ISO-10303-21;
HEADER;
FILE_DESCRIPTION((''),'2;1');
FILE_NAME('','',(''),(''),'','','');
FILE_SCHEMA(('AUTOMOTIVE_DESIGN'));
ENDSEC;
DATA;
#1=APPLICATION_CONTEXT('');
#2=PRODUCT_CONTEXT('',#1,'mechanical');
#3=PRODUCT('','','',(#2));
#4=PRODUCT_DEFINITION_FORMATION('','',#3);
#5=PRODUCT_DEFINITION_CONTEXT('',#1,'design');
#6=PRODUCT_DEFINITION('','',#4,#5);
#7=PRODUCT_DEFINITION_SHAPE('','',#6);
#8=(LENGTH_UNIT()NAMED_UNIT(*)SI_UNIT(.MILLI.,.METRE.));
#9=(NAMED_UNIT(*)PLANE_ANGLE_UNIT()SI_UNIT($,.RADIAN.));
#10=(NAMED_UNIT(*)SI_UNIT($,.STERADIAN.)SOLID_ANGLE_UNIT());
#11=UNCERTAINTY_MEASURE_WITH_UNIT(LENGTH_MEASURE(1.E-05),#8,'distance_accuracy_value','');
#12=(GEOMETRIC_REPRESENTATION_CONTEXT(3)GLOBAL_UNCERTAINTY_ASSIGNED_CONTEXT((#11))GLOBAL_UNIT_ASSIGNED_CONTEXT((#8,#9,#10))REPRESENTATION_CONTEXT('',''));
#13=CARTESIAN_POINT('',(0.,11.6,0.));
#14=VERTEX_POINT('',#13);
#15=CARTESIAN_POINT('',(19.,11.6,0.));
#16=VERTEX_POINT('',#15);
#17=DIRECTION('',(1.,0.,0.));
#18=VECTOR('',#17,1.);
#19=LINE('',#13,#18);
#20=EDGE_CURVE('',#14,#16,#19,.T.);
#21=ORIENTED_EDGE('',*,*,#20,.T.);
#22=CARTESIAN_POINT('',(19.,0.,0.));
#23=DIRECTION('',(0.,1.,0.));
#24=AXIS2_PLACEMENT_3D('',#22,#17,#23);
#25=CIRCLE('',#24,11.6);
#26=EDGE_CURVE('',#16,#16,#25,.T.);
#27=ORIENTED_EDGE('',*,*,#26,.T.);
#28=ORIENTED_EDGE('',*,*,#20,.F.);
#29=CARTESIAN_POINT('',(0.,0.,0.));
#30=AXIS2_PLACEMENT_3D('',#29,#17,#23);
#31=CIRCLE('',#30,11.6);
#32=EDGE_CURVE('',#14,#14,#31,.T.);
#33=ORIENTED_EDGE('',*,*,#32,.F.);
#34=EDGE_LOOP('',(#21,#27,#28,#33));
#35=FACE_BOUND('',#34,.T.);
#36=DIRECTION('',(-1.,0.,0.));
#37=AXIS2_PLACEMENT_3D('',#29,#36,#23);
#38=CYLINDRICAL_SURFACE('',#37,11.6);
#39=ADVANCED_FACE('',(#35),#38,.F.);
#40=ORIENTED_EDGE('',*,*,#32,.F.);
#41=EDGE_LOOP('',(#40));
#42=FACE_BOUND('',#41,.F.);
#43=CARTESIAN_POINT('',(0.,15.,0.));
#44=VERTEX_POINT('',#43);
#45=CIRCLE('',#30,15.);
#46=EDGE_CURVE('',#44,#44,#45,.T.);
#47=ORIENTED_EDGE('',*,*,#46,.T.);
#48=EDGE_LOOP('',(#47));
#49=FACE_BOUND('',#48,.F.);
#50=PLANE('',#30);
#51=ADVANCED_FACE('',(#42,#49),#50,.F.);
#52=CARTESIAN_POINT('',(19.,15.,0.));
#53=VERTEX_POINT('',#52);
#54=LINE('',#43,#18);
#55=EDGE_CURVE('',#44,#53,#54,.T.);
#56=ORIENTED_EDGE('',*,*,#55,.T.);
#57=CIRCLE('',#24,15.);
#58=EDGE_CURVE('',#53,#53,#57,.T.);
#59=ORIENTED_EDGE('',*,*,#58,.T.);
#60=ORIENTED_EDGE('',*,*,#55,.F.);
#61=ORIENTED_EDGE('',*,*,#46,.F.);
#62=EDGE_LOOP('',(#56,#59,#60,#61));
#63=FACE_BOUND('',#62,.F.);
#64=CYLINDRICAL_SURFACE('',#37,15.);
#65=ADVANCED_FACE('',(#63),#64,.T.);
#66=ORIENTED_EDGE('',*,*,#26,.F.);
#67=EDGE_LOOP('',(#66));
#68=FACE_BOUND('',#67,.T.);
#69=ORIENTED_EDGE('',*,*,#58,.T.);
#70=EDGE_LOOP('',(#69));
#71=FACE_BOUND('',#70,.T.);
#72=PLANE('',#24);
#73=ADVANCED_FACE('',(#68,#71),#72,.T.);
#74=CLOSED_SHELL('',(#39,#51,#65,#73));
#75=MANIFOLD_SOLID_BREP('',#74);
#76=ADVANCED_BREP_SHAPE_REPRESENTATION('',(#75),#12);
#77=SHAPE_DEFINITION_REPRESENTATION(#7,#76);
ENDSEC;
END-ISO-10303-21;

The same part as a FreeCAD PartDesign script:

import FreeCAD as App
import Part
import Sketcher
from FreeCAD import Vector

doc = App.newDocument("Part")
body = doc.addObject("PartDesign::Body", "Body")

sketch1 = doc.addObject("Sketcher::SketchObject", "Sketch")
body.addObject(sketch1)
sketch1.AttachmentSupport = (doc.YZ_Plane, [""])
sketch1.MapMode = "FlatFace"
sketch1.addGeometry(Part.Circle(Vector(0, 0, 0), Vector(0, 0, 1), 15), False)
sketch1.addGeometry(Part.Circle(Vector(0, 0, 0), Vector(0, 0, 1), 12), False)
sketch1.addConstraint(Sketcher.Constraint("Coincident", 0, 3, -1, 1))
sketch1.addConstraint(Sketcher.Constraint("Coincident", 1, 3, -1, 1))
sketch1.addConstraint(Sketcher.Constraint("Diameter", 0, 30.0))
sketch1.addConstraint(Sketcher.Constraint("Diameter", 1, 23.2))
pad1 = doc.addObject("PartDesign::Pad", "Pad")
body.addObject(pad1)
pad1.Profile = sketch1
pad1.Length = 19

doc.recompute()
